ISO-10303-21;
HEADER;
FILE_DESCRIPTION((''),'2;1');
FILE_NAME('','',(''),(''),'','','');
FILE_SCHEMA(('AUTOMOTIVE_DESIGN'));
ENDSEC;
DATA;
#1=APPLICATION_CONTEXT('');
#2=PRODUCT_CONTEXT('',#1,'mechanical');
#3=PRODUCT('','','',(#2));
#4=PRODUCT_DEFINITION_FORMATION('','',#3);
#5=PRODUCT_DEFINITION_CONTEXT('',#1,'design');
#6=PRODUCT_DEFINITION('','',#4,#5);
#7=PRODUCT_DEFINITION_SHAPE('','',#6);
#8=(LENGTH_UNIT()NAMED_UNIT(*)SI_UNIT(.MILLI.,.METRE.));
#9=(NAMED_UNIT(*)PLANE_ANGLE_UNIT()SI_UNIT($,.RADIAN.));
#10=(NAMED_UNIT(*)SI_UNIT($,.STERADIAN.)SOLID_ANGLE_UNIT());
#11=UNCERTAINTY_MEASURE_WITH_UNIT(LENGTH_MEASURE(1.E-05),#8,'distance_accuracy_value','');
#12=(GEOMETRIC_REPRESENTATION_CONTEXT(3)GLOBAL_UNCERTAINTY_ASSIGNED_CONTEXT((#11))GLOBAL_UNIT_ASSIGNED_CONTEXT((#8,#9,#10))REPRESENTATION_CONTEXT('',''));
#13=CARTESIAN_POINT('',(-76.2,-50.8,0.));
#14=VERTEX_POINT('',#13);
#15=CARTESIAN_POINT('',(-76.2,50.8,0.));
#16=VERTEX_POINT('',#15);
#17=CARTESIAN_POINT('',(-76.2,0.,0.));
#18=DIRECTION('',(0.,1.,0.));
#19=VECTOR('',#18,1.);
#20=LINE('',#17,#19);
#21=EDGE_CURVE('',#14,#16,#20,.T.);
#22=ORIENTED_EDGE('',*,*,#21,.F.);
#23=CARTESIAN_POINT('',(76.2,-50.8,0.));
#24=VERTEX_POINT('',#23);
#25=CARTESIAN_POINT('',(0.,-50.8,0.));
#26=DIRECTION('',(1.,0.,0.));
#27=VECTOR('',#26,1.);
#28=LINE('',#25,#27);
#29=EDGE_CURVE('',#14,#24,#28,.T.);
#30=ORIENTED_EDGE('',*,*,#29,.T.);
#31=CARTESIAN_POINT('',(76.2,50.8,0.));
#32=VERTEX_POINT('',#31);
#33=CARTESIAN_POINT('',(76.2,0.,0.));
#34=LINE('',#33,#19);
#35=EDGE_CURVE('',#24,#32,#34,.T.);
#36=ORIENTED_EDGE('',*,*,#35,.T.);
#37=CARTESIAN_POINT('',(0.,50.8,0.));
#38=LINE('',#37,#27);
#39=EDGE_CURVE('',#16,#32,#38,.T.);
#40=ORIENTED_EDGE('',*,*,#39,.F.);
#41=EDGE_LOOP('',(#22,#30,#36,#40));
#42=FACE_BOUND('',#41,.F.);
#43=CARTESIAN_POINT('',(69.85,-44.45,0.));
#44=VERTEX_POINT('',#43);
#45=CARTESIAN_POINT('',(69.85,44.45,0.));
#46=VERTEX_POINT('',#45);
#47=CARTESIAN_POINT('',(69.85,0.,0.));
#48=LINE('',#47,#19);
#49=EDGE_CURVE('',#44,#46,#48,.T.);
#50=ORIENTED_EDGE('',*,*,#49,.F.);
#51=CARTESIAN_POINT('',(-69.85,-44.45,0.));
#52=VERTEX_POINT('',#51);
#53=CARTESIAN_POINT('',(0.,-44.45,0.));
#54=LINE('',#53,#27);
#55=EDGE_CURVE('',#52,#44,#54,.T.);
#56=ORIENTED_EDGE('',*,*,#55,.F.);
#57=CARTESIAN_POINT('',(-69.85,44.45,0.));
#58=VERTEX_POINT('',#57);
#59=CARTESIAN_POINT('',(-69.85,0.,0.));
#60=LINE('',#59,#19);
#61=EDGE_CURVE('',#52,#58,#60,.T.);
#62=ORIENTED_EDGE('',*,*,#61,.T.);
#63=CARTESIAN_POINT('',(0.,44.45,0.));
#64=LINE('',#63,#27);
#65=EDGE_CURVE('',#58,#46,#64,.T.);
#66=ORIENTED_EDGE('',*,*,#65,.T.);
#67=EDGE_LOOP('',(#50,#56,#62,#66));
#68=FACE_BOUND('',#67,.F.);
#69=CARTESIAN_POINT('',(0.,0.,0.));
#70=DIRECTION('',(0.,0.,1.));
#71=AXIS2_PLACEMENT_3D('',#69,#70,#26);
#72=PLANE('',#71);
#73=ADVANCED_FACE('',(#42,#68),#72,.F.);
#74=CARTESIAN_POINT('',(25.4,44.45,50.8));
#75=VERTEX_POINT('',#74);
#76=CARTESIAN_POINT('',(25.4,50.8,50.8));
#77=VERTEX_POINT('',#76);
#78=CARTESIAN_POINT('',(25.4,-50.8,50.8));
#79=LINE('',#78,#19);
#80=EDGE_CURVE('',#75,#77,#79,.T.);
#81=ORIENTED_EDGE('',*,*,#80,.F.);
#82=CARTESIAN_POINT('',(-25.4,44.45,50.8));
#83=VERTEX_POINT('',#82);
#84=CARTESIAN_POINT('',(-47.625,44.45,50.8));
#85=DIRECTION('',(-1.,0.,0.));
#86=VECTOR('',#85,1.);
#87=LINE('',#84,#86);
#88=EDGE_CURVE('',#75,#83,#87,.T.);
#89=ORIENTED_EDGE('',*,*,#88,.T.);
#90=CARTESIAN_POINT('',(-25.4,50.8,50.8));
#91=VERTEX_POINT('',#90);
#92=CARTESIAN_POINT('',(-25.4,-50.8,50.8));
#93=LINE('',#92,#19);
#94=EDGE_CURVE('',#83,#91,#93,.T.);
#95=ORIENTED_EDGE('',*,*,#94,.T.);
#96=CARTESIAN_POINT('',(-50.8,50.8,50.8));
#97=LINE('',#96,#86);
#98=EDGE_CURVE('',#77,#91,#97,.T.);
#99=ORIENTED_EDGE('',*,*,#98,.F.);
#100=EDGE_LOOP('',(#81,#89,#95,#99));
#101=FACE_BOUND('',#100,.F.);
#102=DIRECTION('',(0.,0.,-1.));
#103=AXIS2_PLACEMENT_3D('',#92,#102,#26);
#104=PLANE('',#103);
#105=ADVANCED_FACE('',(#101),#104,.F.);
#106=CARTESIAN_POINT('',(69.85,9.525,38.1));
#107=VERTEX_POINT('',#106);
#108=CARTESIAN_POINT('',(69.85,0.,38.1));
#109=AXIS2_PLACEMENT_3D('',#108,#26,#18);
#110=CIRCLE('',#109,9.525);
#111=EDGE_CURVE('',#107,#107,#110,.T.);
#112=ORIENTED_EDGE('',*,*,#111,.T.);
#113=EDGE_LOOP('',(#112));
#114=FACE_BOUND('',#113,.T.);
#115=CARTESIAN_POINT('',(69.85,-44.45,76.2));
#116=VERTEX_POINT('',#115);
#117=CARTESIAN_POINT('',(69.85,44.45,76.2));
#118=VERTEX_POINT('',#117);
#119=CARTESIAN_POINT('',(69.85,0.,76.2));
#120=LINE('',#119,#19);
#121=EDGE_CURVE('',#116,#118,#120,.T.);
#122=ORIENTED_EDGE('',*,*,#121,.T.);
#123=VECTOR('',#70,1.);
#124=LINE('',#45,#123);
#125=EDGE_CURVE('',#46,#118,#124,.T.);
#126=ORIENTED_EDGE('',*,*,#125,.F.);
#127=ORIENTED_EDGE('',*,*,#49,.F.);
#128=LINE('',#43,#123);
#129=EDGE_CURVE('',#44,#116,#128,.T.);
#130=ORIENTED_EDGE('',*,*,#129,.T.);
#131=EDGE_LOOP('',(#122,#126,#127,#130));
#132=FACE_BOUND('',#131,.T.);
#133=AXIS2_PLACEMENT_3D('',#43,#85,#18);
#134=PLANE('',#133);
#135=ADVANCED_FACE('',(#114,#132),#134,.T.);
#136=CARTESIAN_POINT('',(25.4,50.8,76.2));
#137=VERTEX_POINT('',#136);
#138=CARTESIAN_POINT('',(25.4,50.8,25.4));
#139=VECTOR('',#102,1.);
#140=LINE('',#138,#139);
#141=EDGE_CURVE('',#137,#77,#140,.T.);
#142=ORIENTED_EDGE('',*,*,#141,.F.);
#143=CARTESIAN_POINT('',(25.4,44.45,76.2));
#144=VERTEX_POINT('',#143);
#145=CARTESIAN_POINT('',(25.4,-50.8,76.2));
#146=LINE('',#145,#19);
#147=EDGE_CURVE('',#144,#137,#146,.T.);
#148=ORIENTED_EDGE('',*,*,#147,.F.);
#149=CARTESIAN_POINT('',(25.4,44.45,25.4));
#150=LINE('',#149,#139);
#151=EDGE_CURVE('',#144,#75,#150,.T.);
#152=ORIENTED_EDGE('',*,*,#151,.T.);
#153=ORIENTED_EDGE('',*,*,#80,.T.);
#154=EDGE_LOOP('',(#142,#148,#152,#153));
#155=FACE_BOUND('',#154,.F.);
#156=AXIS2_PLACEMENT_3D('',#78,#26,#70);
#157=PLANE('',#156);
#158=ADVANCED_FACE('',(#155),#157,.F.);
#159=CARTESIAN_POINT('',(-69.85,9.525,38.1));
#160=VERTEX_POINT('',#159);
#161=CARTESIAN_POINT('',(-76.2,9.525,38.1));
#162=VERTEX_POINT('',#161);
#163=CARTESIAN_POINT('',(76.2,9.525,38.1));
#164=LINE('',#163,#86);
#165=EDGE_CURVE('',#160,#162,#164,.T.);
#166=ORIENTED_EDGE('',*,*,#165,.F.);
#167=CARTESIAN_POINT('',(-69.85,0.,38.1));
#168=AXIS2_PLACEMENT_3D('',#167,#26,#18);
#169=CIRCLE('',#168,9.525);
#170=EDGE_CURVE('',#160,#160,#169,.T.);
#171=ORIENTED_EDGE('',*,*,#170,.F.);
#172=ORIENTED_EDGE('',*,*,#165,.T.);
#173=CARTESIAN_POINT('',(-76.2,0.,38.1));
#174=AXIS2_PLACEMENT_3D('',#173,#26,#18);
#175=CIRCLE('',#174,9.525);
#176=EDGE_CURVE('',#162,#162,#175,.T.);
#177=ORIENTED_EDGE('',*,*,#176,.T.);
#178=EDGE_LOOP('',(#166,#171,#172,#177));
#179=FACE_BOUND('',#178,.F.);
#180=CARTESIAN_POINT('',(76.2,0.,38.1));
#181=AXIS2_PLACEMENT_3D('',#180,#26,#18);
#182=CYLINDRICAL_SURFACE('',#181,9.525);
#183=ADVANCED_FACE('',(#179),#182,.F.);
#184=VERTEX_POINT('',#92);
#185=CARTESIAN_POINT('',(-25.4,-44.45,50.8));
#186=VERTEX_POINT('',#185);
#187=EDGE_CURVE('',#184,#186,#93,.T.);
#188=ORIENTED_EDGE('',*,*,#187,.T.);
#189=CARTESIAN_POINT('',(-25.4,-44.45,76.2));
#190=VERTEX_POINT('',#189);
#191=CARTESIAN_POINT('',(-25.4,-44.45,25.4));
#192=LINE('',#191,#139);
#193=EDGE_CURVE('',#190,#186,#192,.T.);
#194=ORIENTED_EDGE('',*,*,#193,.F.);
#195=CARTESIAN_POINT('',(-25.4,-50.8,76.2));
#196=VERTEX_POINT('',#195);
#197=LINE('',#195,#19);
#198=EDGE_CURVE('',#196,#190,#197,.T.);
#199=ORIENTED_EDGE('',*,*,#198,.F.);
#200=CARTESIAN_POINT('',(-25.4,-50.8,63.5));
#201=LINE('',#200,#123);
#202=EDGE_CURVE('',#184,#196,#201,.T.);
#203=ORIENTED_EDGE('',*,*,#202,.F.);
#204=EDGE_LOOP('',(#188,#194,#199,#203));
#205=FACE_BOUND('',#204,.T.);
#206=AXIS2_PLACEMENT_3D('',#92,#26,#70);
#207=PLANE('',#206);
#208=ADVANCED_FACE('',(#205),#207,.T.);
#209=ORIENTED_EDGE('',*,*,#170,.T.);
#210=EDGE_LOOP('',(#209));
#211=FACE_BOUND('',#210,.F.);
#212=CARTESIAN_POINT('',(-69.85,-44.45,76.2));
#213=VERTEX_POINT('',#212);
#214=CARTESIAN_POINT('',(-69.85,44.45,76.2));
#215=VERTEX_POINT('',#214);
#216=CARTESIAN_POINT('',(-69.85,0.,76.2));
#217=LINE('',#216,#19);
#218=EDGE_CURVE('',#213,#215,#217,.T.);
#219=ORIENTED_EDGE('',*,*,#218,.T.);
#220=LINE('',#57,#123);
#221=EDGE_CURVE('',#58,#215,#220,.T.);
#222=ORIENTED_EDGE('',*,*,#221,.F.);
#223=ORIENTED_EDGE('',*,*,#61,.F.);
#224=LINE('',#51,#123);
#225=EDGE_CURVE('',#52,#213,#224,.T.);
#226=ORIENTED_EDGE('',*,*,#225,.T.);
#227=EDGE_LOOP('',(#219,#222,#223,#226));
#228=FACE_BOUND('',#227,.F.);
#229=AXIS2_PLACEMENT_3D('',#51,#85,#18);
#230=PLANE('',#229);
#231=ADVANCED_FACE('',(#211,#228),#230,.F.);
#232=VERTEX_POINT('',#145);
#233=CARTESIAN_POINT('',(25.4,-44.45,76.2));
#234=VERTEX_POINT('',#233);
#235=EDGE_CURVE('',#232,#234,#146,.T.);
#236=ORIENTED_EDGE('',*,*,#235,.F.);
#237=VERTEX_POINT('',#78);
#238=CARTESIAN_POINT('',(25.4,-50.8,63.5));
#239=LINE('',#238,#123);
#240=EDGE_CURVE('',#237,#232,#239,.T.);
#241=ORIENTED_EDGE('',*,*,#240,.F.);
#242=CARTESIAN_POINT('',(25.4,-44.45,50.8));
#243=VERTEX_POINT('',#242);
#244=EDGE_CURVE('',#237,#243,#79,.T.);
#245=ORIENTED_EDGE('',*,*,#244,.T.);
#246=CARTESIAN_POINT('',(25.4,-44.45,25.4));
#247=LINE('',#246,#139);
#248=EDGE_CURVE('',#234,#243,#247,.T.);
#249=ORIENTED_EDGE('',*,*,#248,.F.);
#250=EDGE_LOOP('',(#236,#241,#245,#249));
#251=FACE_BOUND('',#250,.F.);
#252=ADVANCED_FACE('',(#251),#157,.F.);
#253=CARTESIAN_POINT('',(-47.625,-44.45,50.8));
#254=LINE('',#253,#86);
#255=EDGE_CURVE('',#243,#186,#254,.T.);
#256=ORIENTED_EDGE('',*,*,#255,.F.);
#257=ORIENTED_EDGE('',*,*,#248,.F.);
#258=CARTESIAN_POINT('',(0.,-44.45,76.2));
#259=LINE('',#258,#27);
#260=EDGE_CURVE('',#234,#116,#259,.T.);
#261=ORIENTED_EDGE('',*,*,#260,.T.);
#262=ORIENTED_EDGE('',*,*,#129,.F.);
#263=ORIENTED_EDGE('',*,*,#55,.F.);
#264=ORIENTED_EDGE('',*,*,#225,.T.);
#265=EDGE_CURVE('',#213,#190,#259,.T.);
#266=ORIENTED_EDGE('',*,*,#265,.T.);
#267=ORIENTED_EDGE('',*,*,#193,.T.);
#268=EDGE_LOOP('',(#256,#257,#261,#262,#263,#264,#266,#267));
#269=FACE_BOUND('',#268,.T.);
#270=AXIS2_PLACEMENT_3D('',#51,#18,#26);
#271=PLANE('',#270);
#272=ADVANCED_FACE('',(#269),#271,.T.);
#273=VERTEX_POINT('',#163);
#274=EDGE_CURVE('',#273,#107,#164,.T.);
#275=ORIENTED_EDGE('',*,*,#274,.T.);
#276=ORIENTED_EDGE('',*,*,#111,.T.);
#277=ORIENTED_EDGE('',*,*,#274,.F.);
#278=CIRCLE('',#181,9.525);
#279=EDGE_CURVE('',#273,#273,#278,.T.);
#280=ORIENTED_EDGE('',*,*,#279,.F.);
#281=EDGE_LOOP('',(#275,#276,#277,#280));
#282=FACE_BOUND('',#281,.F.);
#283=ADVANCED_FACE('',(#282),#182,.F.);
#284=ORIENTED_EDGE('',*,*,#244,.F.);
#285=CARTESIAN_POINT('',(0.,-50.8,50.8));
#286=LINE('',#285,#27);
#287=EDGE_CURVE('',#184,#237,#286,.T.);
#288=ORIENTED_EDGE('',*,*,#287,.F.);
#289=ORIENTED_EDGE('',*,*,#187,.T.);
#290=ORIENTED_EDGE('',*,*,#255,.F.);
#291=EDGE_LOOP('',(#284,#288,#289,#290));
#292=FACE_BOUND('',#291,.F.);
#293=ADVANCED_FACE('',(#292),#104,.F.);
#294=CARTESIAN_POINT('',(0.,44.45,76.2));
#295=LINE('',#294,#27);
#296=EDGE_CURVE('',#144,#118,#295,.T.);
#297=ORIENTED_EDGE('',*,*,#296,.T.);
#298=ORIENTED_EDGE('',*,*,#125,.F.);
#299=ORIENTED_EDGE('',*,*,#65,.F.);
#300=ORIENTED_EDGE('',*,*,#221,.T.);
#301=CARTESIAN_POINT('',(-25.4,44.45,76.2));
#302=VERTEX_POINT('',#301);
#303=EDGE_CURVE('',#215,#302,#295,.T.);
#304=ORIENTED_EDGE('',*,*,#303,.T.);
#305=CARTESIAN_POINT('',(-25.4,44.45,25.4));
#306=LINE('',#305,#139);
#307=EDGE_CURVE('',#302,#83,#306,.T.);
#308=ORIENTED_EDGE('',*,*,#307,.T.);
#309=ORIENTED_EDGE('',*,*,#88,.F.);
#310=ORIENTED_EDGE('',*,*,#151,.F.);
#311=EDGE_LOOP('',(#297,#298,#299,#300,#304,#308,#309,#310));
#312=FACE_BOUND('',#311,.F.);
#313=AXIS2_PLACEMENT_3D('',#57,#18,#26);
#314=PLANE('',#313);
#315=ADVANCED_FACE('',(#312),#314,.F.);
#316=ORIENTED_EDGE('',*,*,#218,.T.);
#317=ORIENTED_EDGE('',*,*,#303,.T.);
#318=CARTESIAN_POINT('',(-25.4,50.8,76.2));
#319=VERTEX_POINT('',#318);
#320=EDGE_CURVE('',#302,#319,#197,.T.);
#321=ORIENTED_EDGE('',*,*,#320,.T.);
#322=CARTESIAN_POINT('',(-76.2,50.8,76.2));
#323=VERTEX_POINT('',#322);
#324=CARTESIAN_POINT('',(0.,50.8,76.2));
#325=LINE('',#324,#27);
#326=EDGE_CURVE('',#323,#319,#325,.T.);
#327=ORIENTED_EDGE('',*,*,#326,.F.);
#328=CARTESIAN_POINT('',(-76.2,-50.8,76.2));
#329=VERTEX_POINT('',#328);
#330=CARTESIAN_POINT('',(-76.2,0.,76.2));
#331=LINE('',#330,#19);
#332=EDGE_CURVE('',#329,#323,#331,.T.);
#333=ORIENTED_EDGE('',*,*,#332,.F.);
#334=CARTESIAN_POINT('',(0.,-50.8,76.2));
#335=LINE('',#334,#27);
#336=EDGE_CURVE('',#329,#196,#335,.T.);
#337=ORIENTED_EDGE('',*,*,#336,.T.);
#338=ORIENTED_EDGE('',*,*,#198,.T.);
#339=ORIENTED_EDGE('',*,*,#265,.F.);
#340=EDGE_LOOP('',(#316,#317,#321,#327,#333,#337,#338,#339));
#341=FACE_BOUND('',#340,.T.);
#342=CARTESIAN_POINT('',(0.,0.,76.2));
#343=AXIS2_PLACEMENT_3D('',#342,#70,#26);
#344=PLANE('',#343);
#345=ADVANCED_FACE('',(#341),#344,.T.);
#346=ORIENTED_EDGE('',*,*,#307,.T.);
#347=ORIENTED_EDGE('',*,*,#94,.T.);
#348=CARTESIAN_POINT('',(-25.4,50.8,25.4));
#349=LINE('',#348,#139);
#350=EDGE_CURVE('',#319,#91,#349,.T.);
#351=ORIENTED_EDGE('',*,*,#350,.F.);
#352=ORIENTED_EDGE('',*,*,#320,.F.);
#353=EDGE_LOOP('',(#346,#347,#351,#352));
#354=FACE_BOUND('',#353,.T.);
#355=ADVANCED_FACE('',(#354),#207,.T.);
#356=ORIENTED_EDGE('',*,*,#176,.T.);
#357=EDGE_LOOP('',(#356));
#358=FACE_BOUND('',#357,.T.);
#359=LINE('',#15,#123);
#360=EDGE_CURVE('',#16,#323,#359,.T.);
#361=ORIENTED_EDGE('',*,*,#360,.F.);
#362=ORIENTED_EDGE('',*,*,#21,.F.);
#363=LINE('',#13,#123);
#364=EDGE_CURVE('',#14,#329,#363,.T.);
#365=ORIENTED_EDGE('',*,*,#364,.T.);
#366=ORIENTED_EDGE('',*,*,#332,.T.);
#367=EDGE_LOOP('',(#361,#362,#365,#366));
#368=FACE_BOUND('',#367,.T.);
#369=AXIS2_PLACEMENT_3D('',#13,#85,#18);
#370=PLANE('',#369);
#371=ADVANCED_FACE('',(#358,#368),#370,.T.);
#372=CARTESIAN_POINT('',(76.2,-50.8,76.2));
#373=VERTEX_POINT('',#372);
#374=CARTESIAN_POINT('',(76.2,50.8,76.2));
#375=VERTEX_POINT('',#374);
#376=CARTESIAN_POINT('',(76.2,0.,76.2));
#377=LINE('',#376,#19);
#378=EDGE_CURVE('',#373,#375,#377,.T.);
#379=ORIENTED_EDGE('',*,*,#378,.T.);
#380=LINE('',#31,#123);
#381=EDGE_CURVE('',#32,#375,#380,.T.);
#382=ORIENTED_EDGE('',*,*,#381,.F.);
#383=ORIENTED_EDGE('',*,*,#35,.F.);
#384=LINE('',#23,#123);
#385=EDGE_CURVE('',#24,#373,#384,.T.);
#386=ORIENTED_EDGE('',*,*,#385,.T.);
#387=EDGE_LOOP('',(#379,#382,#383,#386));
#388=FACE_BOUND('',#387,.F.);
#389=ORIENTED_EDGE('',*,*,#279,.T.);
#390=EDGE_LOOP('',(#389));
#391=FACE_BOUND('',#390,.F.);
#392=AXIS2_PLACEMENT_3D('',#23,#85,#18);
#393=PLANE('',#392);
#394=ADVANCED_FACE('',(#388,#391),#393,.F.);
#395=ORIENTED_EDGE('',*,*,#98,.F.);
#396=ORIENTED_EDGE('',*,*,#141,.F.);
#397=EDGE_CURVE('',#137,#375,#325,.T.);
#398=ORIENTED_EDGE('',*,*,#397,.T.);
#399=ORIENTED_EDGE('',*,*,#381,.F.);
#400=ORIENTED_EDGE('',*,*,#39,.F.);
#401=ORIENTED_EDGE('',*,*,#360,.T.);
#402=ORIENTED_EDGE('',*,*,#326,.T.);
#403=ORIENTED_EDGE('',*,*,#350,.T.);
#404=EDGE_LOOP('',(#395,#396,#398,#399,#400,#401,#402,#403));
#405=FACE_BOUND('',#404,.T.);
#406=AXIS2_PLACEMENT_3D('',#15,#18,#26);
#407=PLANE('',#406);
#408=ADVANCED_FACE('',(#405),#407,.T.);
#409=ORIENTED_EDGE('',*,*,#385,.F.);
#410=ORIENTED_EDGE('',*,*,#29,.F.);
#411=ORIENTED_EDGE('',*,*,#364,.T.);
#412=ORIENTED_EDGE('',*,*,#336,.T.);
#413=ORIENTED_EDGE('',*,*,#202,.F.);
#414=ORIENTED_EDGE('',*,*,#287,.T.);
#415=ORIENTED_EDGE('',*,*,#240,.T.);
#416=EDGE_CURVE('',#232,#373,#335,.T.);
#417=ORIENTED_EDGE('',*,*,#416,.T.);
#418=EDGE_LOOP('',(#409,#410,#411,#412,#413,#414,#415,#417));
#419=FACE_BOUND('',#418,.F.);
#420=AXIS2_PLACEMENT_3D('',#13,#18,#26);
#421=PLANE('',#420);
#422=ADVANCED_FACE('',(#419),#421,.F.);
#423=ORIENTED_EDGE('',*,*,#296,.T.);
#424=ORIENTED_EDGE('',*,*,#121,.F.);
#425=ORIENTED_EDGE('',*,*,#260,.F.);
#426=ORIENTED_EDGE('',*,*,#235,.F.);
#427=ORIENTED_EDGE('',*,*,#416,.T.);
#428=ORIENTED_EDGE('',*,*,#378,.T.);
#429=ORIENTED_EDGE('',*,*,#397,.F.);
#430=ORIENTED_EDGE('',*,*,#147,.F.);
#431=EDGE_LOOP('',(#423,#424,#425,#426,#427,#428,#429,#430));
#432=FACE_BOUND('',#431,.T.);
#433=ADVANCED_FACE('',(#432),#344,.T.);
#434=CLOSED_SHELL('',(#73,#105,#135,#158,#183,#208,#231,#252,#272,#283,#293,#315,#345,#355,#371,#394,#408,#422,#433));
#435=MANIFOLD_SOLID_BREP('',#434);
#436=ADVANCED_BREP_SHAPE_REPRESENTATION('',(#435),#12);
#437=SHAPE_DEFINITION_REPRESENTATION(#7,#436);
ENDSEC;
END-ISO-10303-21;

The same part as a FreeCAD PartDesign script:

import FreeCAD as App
import Part
import Sketcher
Q = App.Units.Quantity

doc = App.newDocument("Part")
params = doc.addObject("Spreadsheet::Sheet", "Params")
for row, (alias, value) in enumerate([
    ("sketch1_width", "6 in"),
    ("sketch1_height", "4 in"),
    ("sketch1_width2", "5.5 in"),
    ("sketch1_height2", "3.5 in"),
    ("pad1_length", "3 in"),
    ("sketch2_width", "2 in"),
    ("sketch2_height", "1 in"),
    ("sketch3_diameter", "0.75 in"),
], start=1):
    params.set(f"A{row}", alias)
    params.set(f"B{row}", "=" + value)
    params.setAlias(f"B{row}", alias)

body = doc.addObject("PartDesign::Body", "Body")

sketch1 = body.newObject("Sketcher::SketchObject", "Sketch")
sketch1.AttachmentSupport = (doc.getObject("XY_Plane"), [""])
sketch1.MapMode = "FlatFace"
sketch1.addGeometry([
    Part.LineSegment(App.Vector(-76, 51, 0), App.Vector(-76, -51, 0)),
    Part.LineSegment(App.Vector(-76, -51, 0), App.Vector(76, -51, 0)),
    Part.LineSegment(App.Vector(76, -51, 0), App.Vector(76, 51, 0)),
    Part.LineSegment(App.Vector(76, 51, 0), App.Vector(-76, 51, 0)),
    Part.LineSegment(App.Vector(70, -44, 0), App.Vector(-70, -44, 0)),
    Part.LineSegment(App.Vector(-70, -44, 0), App.Vector(-70, 44, 0)),
    Part.LineSegment(App.Vector(-70, 44, 0), App.Vector(70, 44, 0)),
    Part.LineSegment(App.Vector(70, 44, 0), App.Vector(70, -44, 0)),
], False)
sketch1.addConstraint([
    Sketcher.Constraint("Coincident", 0, 2, 1, 1),
    Sketcher.Constraint("Coincident", 1, 2, 2, 1),
    Sketcher.Constraint("Coincident", 2, 2, 3, 1),
    Sketcher.Constraint("Coincident", 3, 2, 0, 1),
    Sketcher.Constraint("Coincident", 4, 2, 5, 1),
    Sketcher.Constraint("Coincident", 5, 2, 6, 1),
    Sketcher.Constraint("Coincident", 6, 2, 7, 1),
    Sketcher.Constraint("Coincident", 7, 2, 4, 1),
    Sketcher.Constraint("Vertical", 0),
    Sketcher.Constraint("Horizontal", 1),
    Sketcher.Constraint("Vertical", 2),
    Sketcher.Constraint("Horizontal", 3),
    Sketcher.Constraint("Horizontal", 4),
    Sketcher.Constraint("Vertical", 5),
    Sketcher.Constraint("Horizontal", 6),
    Sketcher.Constraint("Vertical", 7),
    Sketcher.Constraint("Symmetric", 0, 2, 2, 2, -1, 1),
    Sketcher.Constraint("Symmetric", 4, 2, 6, 2, -1, 1),
    Sketcher.Constraint("DistanceX", 1, 1, 1, 2, Q("6 in")),
    Sketcher.Constraint("DistanceY", 0, 2, 0, 1, Q("4 in")),
    Sketcher.Constraint("DistanceX", 4, 2, 4, 1, Q("5.5 in")),
    Sketcher.Constraint("DistanceY", 5, 1, 5, 2, Q("3.5 in")),
])
sketch1.setExpression("Constraints[18]", "Params.sketch1_width")
sketch1.setExpression("Constraints[19]", "Params.sketch1_height")
sketch1.setExpression("Constraints[20]", "Params.sketch1_width2")
sketch1.setExpression("Constraints[21]", "Params.sketch1_height2")
pad1 = body.newObject("PartDesign::Pad", "Pad")
pad1.Profile = sketch1
pad1.setExpression("Length", "Params.pad1_length")

sketch2 = body.newObject("Sketcher::SketchObject", "Sketch001")
sketch2.AttachmentSupport = (doc.getObject("XZ_Plane"), [""])
sketch2.MapMode = "FlatFace"
sketch2.AttachmentOffset = App.Placement(App.Vector(0, 0, 2 * 25.4), App.Rotation())
sketch2.addGeometry([
    Part.LineSegment(App.Vector(-25, 76, 0), App.Vector(-25, 51, 0)),
    Part.LineSegment(App.Vector(-25, 51, 0), App.Vector(25, 51, 0)),
    Part.LineSegment(App.Vector(25, 51, 0), App.Vector(25, 76, 0)),
    Part.LineSegment(App.Vector(25, 76, 0), App.Vector(-25, 76, 0)),
], False)
sketch2.addConstraint([
    Sketcher.Constraint("Coincident", 0, 2, 1, 1),
    Sketcher.Constraint("Coincident", 1, 2, 2, 1),
    Sketcher.Constraint("Coincident", 2, 2, 3, 1),
    Sketcher.Constraint("Coincident", 3, 2, 0, 1),
    Sketcher.Constraint("Vertical", 0),
    Sketcher.Constraint("Horizontal", 1),
    Sketcher.Constraint("Vertical", 2),
    Sketcher.Constraint("Horizontal", 3),
    Sketcher.Constraint("DistanceX", 1, 1, 1, 2, Q("2 in")),
    Sketcher.Constraint("DistanceY", 0, 2, 0, 1, Q("1 in")),
    Sketcher.Constraint("DistanceX", 0, 2, -1, 1, Q("1 in")),
    Sketcher.Constraint("DistanceY", -1, 1, 0, 2, Q("2 in")),
])
sketch2.setExpression("Constraints[8]", "Params.sketch2_width")
sketch2.setExpression("Constraints[9]", "Params.sketch2_height")
pocket1 = body.newObject("PartDesign::Pocket", "Pocket")
pocket1.Profile = sketch2
pocket1.Type = "ThroughAll"

sketch3 = body.newObject("Sketcher::SketchObject", "Sketch002")
sketch3.AttachmentSupport = (doc.getObject("YZ_Plane"), [""])
sketch3.MapMode = "FlatFace"
sketch3.AttachmentOffset = App.Placement(App.Vector(0, 0, 3 * 25.4), App.Rotation())
sketch3.addGeometry(Part.Circle(App.Vector(0, 38, 0), App.Vector(0, 0, 1), 10), False)
sketch3.addConstraint([
    Sketcher.Constraint("PointOnObject", 0, 3, -2),
    Sketcher.Constraint("Diameter", 0, Q("0.75 in")),
    Sketcher.Constraint("DistanceY", -1, 1, 0, 3, Q("1.5 in")),
])
sketch3.setExpression("Constraints[1]", "Params.sketch3_diameter")
pocket2 = body.newObject("PartDesign::Pocket", "Pocket001")
pocket2.Profile = sketch3
pocket2.Type = "ThroughAll"

doc.recompute()
